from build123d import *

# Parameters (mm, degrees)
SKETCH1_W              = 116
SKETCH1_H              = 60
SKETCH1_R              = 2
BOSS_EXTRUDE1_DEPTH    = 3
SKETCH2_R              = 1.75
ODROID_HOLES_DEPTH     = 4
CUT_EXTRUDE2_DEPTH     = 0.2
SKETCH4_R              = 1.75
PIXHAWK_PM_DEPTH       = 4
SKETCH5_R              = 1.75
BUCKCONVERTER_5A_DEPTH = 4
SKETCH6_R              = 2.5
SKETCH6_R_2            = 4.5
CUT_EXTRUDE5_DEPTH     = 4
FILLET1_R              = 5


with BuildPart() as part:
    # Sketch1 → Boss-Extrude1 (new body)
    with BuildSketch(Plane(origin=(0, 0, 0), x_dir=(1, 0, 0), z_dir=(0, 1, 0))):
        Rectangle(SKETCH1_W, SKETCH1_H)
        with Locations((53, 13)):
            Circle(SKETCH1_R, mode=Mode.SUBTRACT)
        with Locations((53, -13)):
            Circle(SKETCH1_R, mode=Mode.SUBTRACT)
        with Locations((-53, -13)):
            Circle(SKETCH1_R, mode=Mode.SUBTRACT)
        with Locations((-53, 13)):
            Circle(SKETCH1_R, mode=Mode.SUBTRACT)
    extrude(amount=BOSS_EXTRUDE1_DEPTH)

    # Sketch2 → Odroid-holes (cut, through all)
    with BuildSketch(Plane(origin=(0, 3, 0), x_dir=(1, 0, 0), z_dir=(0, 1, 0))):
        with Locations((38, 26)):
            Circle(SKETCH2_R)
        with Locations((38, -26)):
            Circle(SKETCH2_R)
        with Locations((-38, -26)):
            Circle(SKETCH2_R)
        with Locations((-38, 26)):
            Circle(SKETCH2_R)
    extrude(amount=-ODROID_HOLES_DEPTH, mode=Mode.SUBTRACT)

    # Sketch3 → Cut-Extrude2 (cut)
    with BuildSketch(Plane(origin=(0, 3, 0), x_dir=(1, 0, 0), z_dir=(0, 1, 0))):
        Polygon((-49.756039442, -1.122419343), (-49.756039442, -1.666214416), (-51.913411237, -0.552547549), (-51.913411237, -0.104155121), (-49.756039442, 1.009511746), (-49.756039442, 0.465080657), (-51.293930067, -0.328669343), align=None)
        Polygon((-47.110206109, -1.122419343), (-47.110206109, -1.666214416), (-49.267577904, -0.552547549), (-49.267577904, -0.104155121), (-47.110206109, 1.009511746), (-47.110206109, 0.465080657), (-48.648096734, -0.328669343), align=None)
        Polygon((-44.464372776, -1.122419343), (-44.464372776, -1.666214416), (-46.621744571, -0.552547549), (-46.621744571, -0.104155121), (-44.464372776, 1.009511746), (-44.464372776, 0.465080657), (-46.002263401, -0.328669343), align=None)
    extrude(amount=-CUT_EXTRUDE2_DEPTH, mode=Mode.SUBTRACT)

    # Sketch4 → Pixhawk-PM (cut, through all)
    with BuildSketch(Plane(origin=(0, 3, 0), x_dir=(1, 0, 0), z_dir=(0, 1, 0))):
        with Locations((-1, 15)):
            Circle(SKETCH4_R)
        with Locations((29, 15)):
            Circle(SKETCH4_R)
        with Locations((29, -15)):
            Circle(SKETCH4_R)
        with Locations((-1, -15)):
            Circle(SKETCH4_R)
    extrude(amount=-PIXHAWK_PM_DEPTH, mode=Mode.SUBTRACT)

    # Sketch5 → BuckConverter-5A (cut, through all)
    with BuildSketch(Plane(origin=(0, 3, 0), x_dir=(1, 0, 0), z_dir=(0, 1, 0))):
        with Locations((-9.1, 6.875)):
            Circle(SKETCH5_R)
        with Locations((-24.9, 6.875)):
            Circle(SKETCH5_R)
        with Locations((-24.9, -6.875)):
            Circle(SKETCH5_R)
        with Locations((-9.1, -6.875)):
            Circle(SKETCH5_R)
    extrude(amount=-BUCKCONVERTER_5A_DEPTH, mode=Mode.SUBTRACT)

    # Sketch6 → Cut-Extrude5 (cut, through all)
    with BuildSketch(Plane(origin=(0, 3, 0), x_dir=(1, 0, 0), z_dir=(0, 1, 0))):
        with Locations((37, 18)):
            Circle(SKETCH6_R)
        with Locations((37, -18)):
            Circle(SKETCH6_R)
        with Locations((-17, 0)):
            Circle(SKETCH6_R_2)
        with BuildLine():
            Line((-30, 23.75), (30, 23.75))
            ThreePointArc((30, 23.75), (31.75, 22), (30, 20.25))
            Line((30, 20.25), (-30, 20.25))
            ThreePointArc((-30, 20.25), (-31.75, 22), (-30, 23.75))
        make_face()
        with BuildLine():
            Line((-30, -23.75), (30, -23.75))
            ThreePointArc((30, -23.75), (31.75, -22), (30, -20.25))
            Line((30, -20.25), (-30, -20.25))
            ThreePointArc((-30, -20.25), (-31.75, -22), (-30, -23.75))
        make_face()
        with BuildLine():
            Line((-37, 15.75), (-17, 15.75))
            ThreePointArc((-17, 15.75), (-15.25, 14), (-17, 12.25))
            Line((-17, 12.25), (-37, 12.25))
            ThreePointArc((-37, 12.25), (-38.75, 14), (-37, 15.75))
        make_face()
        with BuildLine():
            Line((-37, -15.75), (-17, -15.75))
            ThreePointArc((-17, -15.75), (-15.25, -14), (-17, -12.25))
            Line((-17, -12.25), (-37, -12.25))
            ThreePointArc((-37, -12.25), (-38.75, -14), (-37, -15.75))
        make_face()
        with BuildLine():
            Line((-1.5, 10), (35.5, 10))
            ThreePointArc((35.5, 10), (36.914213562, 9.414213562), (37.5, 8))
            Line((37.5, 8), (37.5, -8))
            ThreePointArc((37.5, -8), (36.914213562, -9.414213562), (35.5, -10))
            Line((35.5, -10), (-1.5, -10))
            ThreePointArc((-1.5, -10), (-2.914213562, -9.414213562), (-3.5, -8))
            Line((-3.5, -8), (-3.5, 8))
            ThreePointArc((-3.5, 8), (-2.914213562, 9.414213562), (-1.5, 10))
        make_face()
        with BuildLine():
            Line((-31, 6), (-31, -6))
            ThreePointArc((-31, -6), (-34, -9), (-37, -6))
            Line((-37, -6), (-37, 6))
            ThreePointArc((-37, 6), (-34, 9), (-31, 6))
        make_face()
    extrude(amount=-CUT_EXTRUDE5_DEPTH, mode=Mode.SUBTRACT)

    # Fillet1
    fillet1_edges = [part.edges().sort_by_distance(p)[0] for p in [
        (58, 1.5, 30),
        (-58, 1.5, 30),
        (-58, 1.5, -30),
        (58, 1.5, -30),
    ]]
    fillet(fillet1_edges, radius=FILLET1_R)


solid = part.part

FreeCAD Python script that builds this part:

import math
import FreeCAD as App
import Part
import Sketcher

V = App.Vector
Q = App.Units.Quantity


def edges_at(feature, points):
    """Names of the edges that pass closest to the given points."""
    edges = feature.Shape.Edges
    near = lambda p: min(range(len(edges)), key=lambda i: edges[i].distToShape(Part.Vertex(*p))[0])
    return sorted({f"Edge{near(p) + 1}" for p in points})

doc = App.newDocument("Part")
body = doc.addObject("PartDesign::Body", "Body")

sketch1 = body.newObject("Sketcher::SketchObject", "Sketch")
sketch1.AttachmentSupport = (doc.getObject("XZ_Plane"), [""])
sketch1.MapMode = "FlatFace"
sketch1.addGeometry([
    Part.LineSegment(V(-58, -30, 0), V(-58, 30, 0)),
    Part.LineSegment(V(-58, 30, 0), V(58, 30, 0)),
    Part.LineSegment(V(58, 30, 0), V(58, -30, 0)),
    Part.LineSegment(V(58, -30, 0), V(-58, -30, 0)),
    Part.Circle(V(-53, 13, 0), V(0, 0, 1), 2),
    Part.Circle(V(53, 13, 0), V(0, 0, 1), 2),
    Part.Circle(V(-53, -13, 0), V(0, 0, 1), 2),
    Part.Circle(V(53, -13, 0), V(0, 0, 1), 2),
], False)
sketch1.addConstraint([
    Sketcher.Constraint("Coincident", 0, 2, 1, 1),
    Sketcher.Constraint("Coincident", 1, 2, 2, 1),
    Sketcher.Constraint("Coincident", 2, 2, 3, 1),
    Sketcher.Constraint("Coincident", 3, 2, 0, 1),
    Sketcher.Constraint("Vertical", 0),
    Sketcher.Constraint("Horizontal", 1),
    Sketcher.Constraint("Vertical", 2),
    Sketcher.Constraint("Horizontal", 3),
    Sketcher.Constraint("Equal", 4, 5),
    Sketcher.Constraint("Equal", 5, 6),
    Sketcher.Constraint("Equal", 6, 7),
    Sketcher.Constraint("Symmetric", 5, 3, 6, 3, -1, 1),
    Sketcher.Constraint("Symmetric", 4, 3, 7, 3, -1, 1),
    Sketcher.Constraint("Symmetric", 0, 2, 2, 2, -1, 1),
    Sketcher.Constraint("Symmetric", 4, 3, 5, 3, -2),
    Sketcher.Constraint("Diameter", 4, Q("4 mm")),
    Sketcher.Constraint("DistanceX", 1, 1, 1, 2, Q("116 mm")),
    Sketcher.Constraint("DistanceY", 0, 1, 0, 2, Q("60 mm")),
    Sketcher.Constraint("DistanceX", 4, 3, -1, 1, Q("53 mm")),
    Sketcher.Constraint("DistanceY", -1, 1, 4, 3, Q("13 mm")),
])
pad1 = body.newObject("PartDesign::Pad", "Pad")
pad1.Profile = sketch1
pad1.Length = 3
pad1.Reversed = True

sketch2 = body.newObject("Sketcher::SketchObject", "Sketch001")
sketch2.AttachmentSupport = (doc.getObject("XZ_Plane"), [""])
sketch2.MapMode = "FlatFace"
sketch2.AttachmentOffset = App.Placement(V(0, 0, -3), App.Rotation())
sketch2.addGeometry([
    Part.Circle(V(38, -26, 0), V(0, 0, 1), 1.75),
    Part.Circle(V(38, 26, 0), V(0, 0, 1), 1.75),
    Part.Circle(V(-38, 26, 0), V(0, 0, 1), 1.75),
    Part.Circle(V(-38, -26, 0), V(0, 0, 1), 1.75),
], False)
sketch2.addConstraint([
    Sketcher.Constraint("Equal", 0, 1),
    Sketcher.Constraint("Equal", 1, 2),
    Sketcher.Constraint("Equal", 2, 3),
    Sketcher.Constraint("Symmetric", 0, 3, 2, 3, -1, 1),
    Sketcher.Constraint("Symmetric", 1, 3, 3, 3, -1, 1),
    Sketcher.Constraint("Symmetric", 1, 3, 2, 3, -2),
    Sketcher.Constraint("Diameter", 0, Q("3.5 mm")),
    Sketcher.Constraint("DistanceX", -1, 1, 0, 3, Q("38 mm")),
    Sketcher.Constraint("DistanceY", 0, 3, -1, 1, Q("26 mm")),
])
pocket1 = body.newObject("PartDesign::Pocket", "Pocket")
pocket1.Profile = sketch2
pocket1.Type = "ThroughAll"
pocket1.Reversed = True

sketch3 = body.newObject("Sketcher::SketchObject", "Sketch002")
sketch3.AttachmentSupport = (doc.getObject("XZ_Plane"), [""])
sketch3.MapMode = "FlatFace"
sketch3.AttachmentOffset = App.Placement(V(0, 0, -3), App.Rotation())
sketch3.addGeometry([
    Part.LineSegment(V(-49.756039, 1.666214, 0), V(-49.756039, 1.122419, 0)),
    Part.LineSegment(V(-49.756039, 1.122419, 0), V(-51.29393, 0.328669, 0)),
    Part.LineSegment(V(-51.29393, 0.328669, 0), V(-49.756039, -0.465081, 0)),
    Part.LineSegment(V(-49.756039, -0.465081, 0), V(-49.756039, -1.009512, 0)),
    Part.LineSegment(V(-49.756039, -1.009512, 0), V(-51.913411, 0.104155, 0)),
    Part.LineSegment(V(-51.913411, 0.104155, 0), V(-51.913411, 0.552548, 0)),
    Part.LineSegment(V(-51.913411, 0.552548, 0), V(-49.756039, 1.666214, 0)),
    Part.LineSegment(V(-47.110206, 1.666214, 0), V(-47.110206, 1.122419, 0)),
    Part.LineSegment(V(-47.110206, 1.122419, 0), V(-48.648097, 0.328669, 0)),
    Part.LineSegment(V(-48.648097, 0.328669, 0), V(-47.110206, -0.465081, 0)),
    Part.LineSegment(V(-47.110206, -0.465081, 0), V(-47.110206, -1.009512, 0)),
    Part.LineSegment(V(-47.110206, -1.009512, 0), V(-49.267578, 0.104155, 0)),
    Part.LineSegment(V(-49.267578, 0.104155, 0), V(-49.267578, 0.552548, 0)),
    Part.LineSegment(V(-49.267578, 0.552548, 0), V(-47.110206, 1.666214, 0)),
    Part.LineSegment(V(-44.464373, 1.666214, 0), V(-44.464373, 1.122419, 0)),
    Part.LineSegment(V(-44.464373, 1.122419, 0), V(-46.002263, 0.328669, 0)),
    Part.LineSegment(V(-46.002263, 0.328669, 0), V(-44.464373, -0.465081, 0)),
    Part.LineSegment(V(-44.464373, -0.465081, 0), V(-44.464373, -1.009512, 0)),
    Part.LineSegment(V(-44.464373, -1.009512, 0), V(-46.621745, 0.104155, 0)),
    Part.LineSegment(V(-46.621745, 0.104155, 0), V(-46.621745, 0.552548, 0)),
    Part.LineSegment(V(-46.621745, 0.552548, 0), V(-44.464373, 1.666214, 0)),
], False)
sketch3.addConstraint([
    Sketcher.Constraint("Coincident", 0, 2, 1, 1),
    Sketcher.Constraint("Coincident", 1, 2, 2, 1),
    Sketcher.Constraint("Coincident", 2, 2, 3, 1),
    Sketcher.Constraint("Coincident", 3, 2, 4, 1),
    Sketcher.Constraint("Coincident", 4, 2, 5, 1),
    Sketcher.Constraint("Coincident", 5, 2, 6, 1),
    Sketcher.Constraint("Coincident", 6, 2, 0, 1),
    Sketcher.Constraint("Coincident", 7, 2, 8, 1),
    Sketcher.Constraint("Coincident", 8, 2, 9, 1),
    Sketcher.Constraint("Coincident", 9, 2, 10, 1),
    Sketcher.Constraint("Coincident", 10, 2, 11, 1),
    Sketcher.Constraint("Coincident", 11, 2, 12, 1),
    Sketcher.Constraint("Coincident", 12, 2, 13, 1),
    Sketcher.Constraint("Coincident", 13, 2, 7, 1),
    Sketcher.Constraint("Coincident", 14, 2, 15, 1),
    Sketcher.Constraint("Coincident", 15, 2, 16, 1),
    Sketcher.Constraint("Coincident", 16, 2, 17, 1),
    Sketcher.Constraint("Coincident", 17, 2, 18, 1),
    Sketcher.Constraint("Coincident", 18, 2, 19, 1),
    Sketcher.Constraint("Coincident", 19, 2, 20, 1),
    Sketcher.Constraint("Coincident", 20, 2, 14, 1),
    Sketcher.Constraint("Vertical", 0),
    Sketcher.Constraint("Vertical", 3),
    Sketcher.Constraint("Vertical", 5),
    Sketcher.Constraint("Vertical", 7),
    Sketcher.Constraint("Vertical", 10),
    Sketcher.Constraint("Vertical", 12),
    Sketcher.Constraint("Vertical", 14),
    Sketcher.Constraint("Vertical", 17),
    Sketcher.Constraint("Vertical", 19),
    Sketcher.Constraint("Parallel", 1, 8),
    Sketcher.Constraint("Parallel", 2, 9),
    Sketcher.Constraint("Parallel", 4, 11),
    Sketcher.Constraint("Parallel", 6, 13),
    Sketcher.Constraint("Parallel", 8, 15),
    Sketcher.Constraint("Parallel", 9, 16),
    Sketcher.Constraint("Parallel", 11, 18),
    Sketcher.Constraint("Parallel", 13, 20),
    Sketcher.Constraint("Horizontal", 0, 2, 7, 2),
    Sketcher.Constraint("Horizontal", 1, 2, 8, 2),
    Sketcher.Constraint("Horizontal", 2, 2, 9, 2),
    Sketcher.Constraint("Horizontal", 3, 2, 10, 2),
    Sketcher.Constraint("Horizontal", 4, 2, 11, 2),
    Sketcher.Constraint("Horizontal", 5, 2, 12, 2),
    Sketcher.Constraint("Horizontal", 7, 2, 14, 2),
    Sketcher.Constraint("Horizontal", 8, 2, 15, 2),
    Sketcher.Constraint("Horizontal", 9, 2, 16, 2),
    Sketcher.Constraint("Horizontal", 10, 2, 17, 2),
    Sketcher.Constraint("Horizontal", 11, 2, 18, 2),
    Sketcher.Constraint("Horizontal", 12, 2, 19, 2),
    Sketcher.Constraint("Vertical", 0, 2, 2, 2),
    Sketcher.Constraint("Equal", 1, 2),
    Sketcher.Constraint("Equal", 4, 6),
    Sketcher.Constraint("DistanceY", 3, 2, 3, 1, Q("0.544431 mm")),
    Sketcher.Constraint("DistanceY", 2, 2, 0, 2, Q("1.5875 mm")),
    Sketcher.Constraint("Distance", 1, Q("1.730649 mm")),
    Sketcher.Constraint("Distance", 4, Q("2.427861 mm")),
    Sketcher.Constraint("DistanceY", 0, 2, 0, 1, Q("0.543795 mm")),
    Sketcher.Constraint("DistanceY", 5, 1, 5, 2, Q("0.448392 mm")),
    Sketcher.Constraint("DistanceX", 0, 2, -1, 1, Q("49.756039 mm")),
    Sketcher.Constraint("DistanceY", -1, 1, 0, 2, Q("1.122419 mm")),
    Sketcher.Constraint("DistanceX", 2, 2, 11, 2, Q("0.488462 mm")),
    Sketcher.Constraint("DistanceX", 9, 2, 18, 2, Q("0.488462 mm")),
])
pocket2 = body.newObject("PartDesign::Pocket", "Pocket001")
pocket2.Profile = sketch3
pocket2.Length = 0.2
pocket2.Reversed = True

sketch4 = body.newObject("Sketcher::SketchObject", "Sketch003")
sketch4.AttachmentSupport = (doc.getObject("XZ_Plane"), [""])
sketch4.MapMode = "FlatFace"
sketch4.AttachmentOffset = App.Placement(V(0, 0, -3), App.Rotation())
sketch4.addGeometry([
    Part.Circle(V(-1, -15, 0), V(0, 0, 1), 1.75),
    Part.Circle(V(29, -15, 0), V(0, 0, 1), 1.75),
    Part.Circle(V(29, 15, 0), V(0, 0, 1), 1.75),
    Part.Circle(V(-1, 15, 0), V(0, 0, 1), 1.75),
], False)
sketch4.addConstraint([
    Sketcher.Constraint("Equal", 0, 1),
    Sketcher.Constraint("Equal", 1, 2),
    Sketcher.Constraint("Equal", 2, 3),
    Sketcher.Constraint("Symmetric", 1, 3, 2, 3, -1),
    Sketcher.Constraint("Symmetric", 0, 3, 3, 3, -1),
    Sketcher.Constraint("Horizontal", 0, 3, 1, 3),
    Sketcher.Constraint("Diameter", 0, Q("3.5 mm")),
    Sketcher.Constraint("DistanceX", 0, 3, -1, 1, Q("1 mm")),
    Sketcher.Constraint("DistanceY", 0, 3, -1, 1, Q("15 mm")),
    Sketcher.Constraint("DistanceX", -1, 1, 1, 3, Q("29 mm")),
])
pocket3 = body.newObject("PartDesign::Pocket", "Pocket002")
pocket3.Profile = sketch4
pocket3.Type = "ThroughAll"
pocket3.Reversed = True

sketch5 = body.newObject("Sketcher::SketchObject", "Sketch004")
sketch5.AttachmentSupport = (doc.getObject("XZ_Plane"), [""])
sketch5.MapMode = "FlatFace"
sketch5.AttachmentOffset = App.Placement(V(0, 0, -3), App.Rotation())
sketch5.addGeometry([
    Part.Circle(V(-9.1, -6.875, 0), V(0, 0, 1), 1.75),
    Part.Circle(V(-24.9, -6.875, 0), V(0, 0, 1), 1.75),
    Part.Circle(V(-24.9, 6.875, 0), V(0, 0, 1), 1.75),
    Part.Circle(V(-9.1, 6.875, 0), V(0, 0, 1), 1.75),
], False)
sketch5.addConstraint([
    Sketcher.Constraint("Equal", 0, 1),
    Sketcher.Constraint("Equal", 1, 2),
    Sketcher.Constraint("Equal", 2, 3),
    Sketcher.Constraint("Symmetric", 1, 3, 2, 3, -1),
    Sketcher.Constraint("Symmetric", 0, 3, 3, 3, -1),
    Sketcher.Constraint("Horizontal", 0, 3, 1, 3),
    Sketcher.Constraint("Diameter", 0, Q("3.5 mm")),
    Sketcher.Constraint("DistanceX", 0, 3, -1, 1, Q("9.1 mm")),
    Sketcher.Constraint("DistanceX", 1, 3, -1, 1, Q("24.9 mm")),
    Sketcher.Constraint("DistanceY", 1, 3, 2, 3, Q("13.75 mm")),
])
pocket4 = body.newObject("PartDesign::Pocket", "Pocket003")
pocket4.Profile = sketch5
pocket4.Type = "ThroughAll"
pocket4.Reversed = True

sketch6 = body.newObject("Sketcher::SketchObject", "Sketch005")
sketch6.AttachmentSupport = (doc.getObject("XZ_Plane"), [""])
sketch6.MapMode = "FlatFace"
sketch6.AttachmentOffset = App.Placement(V(0, 0, -3), App.Rotation())
sketch6.addGeometry([
    Part.Circle(V(37, -18, 0), V(0, 0, 1), 2.5),
    Part.Circle(V(37, 18, 0), V(0, 0, 1), 2.5),
    Part.Circle(V(-17, 0, 0), V(0, 0, 1), 4.5),
    Part.LineSegment(V(30, -23.75, 0), V(-30, -23.75, 0)),
    Part.ArcOfCircle(Part.Circle(V(-30, -22, 0), V(0, 0, 1), 1.75), math.radians(90), math.radians(270)),
    Part.LineSegment(V(-30, -20.25, 0), V(30, -20.25, 0)),
    Part.ArcOfCircle(Part.Circle(V(30, -22, 0), V(0, 0, 1), 1.75), math.radians(-90), math.radians(90)),
    Part.LineSegment(V(-30, 23.75, 0), V(30, 23.75, 0)),
    Part.ArcOfCircle(Part.Circle(V(30, 22, 0), V(0, 0, 1), 1.75), math.radians(-90), math.radians(90)),
    Part.LineSegment(V(30, 20.25, 0), V(-30, 20.25, 0)),
    Part.ArcOfCircle(Part.Circle(V(-30, 22, 0), V(0, 0, 1), 1.75), math.radians(90), math.radians(270)),
    Part.LineSegment(V(-17, -15.75, 0), V(-37, -15.75, 0)),
    Part.ArcOfCircle(Part.Circle(V(-37, -14, 0), V(0, 0, 1), 1.75), math.radians(90), math.radians(270)),
    Part.LineSegment(V(-37, -12.25, 0), V(-17, -12.25, 0)),
    Part.ArcOfCircle(Part.Circle(V(-17, -14, 0), V(0, 0, 1), 1.75), math.radians(-90), math.radians(90)),
    Part.LineSegment(V(-37, 15.75, 0), V(-17, 15.75, 0)),
    Part.ArcOfCircle(Part.Circle(V(-17, 14, 0), V(0, 0, 1), 1.75), math.radians(-90), math.radians(90)),
    Part.LineSegment(V(-17, 12.25, 0), V(-37, 12.25, 0)),
    Part.ArcOfCircle(Part.Circle(V(-37, 14, 0), V(0, 0, 1), 1.75), math.radians(90), math.radians(270)),
    Part.LineSegment(V(35.5, -10, 0), V(-1.5, -10, 0)),
    Part.ArcOfCircle(Part.Circle(V(-1.5, -8, 0), V(0, 0, 1), 2), math.radians(-180), math.radians(-90)),
    Part.LineSegment(V(-3.5, -8, 0), V(-3.5, 8, 0)),
    Part.ArcOfCircle(Part.Circle(V(-1.5, 8, 0), V(0, 0, 1), 2), math.radians(90), math.radians(180)),
    Part.LineSegment(V(-1.5, 10, 0), V(35.5, 10, 0)),
    Part.ArcOfCircle(Part.Circle(V(35.5, 8, 0), V(0, 0, 1), 2), math.radians(0), math.radians(90)),
    Part.LineSegment(V(37.5, 8, 0), V(37.5, -8, 0)),
    Part.ArcOfCircle(Part.Circle(V(35.5, -8, 0), V(0, 0, 1), 2), math.radians(-90), math.radians(0)),
    Part.LineSegment(V(-31, 6, 0), V(-31, -6, 0)),
    Part.ArcOfCircle(Part.Circle(V(-34, -6, 0), V(0, 0, 1), 3), math.radians(180), math.radians(360)),
    Part.LineSegment(V(-37, -6, 0), V(-37, 6, 0)),
    Part.ArcOfCircle(Part.Circle(V(-34, 6, 0), V(0, 0, 1), 3), math.radians(0), math.radians(180)),
], False)
sketch6.addConstraint([
    Sketcher.Constraint("Tangent", 3, 2, 4, 2),
    Sketcher.Constraint("Tangent", 4, 1, 5, 1),
    Sketcher.Constraint("Tangent", 5, 2, 6, 2),
    Sketcher.Constraint("Tangent", 6, 1, 3, 1),
    Sketcher.Constraint("Tangent", 7, 2, 8, 2),
    Sketcher.Constraint("Tangent", 8, 1, 9, 1),
    Sketcher.Constraint("Tangent", 9, 2, 10, 2),
    Sketcher.Constraint("Tangent", 10, 1, 7, 1),
    Sketcher.Constraint("Tangent", 11, 2, 12, 2),
    Sketcher.Constraint("Tangent", 12, 1, 13, 1),
    Sketcher.Constraint("Tangent", 13, 2, 14, 2),
    Sketcher.Constraint("Tangent", 14, 1, 11, 1),
    Sketcher.Constraint("Tangent", 15, 2, 16, 2),
    Sketcher.Constraint("Tangent", 16, 1, 17, 1),
    Sketcher.Constraint("Tangent", 17, 2, 18, 2),
    Sketcher.Constraint("Tangent", 18, 1, 15, 1),
    Sketcher.Constraint("Tangent", 19, 2, 20, 2),
    Sketcher.Constraint("Tangent", 20, 1, 21, 1),
    Sketcher.Constraint("Tangent", 21, 2, 22, 2),
    Sketcher.Constraint("Tangent", 22, 1, 23, 1),
    Sketcher.Constraint("Tangent", 23, 2, 24, 2),
    Sketcher.Constraint("Tangent", 24, 1, 25, 1),
    Sketcher.Constraint("Tangent", 25, 2, 26, 2),
    Sketcher.Constraint("Tangent", 26, 1, 19, 1),
    Sketcher.Constraint("Tangent", 27, 2, 28, 2),
    Sketcher.Constraint("Tangent", 28, 1, 29, 1),
    Sketcher.Constraint("Tangent", 29, 2, 30, 2),
    Sketcher.Constraint("Tangent", 30, 1, 27, 1),
    Sketcher.Constraint("Horizontal", 3),
    Sketcher.Constraint("Horizontal", 5),
    Sketcher.Constraint("Horizontal", 7),
    Sketcher.Constraint("Horizontal", 9),
    Sketcher.Constraint("Horizontal", 11),
    Sketcher.Constraint("Horizontal", 13),
    Sketcher.Constraint("Horizontal", 15),
    Sketcher.Constraint("Horizontal", 17),
    Sketcher.Constraint("Horizontal", 19),
    Sketcher.Constraint("Vertical", 21),
    Sketcher.Constraint("Horizontal", 23),
    Sketcher.Constraint("Vertical", 25),
    Sketcher.Constraint("Vertical", 27),
    Sketcher.Constraint("Vertical", 29),
    Sketcher.Constraint("Equal", 0, 1),
    Sketcher.Constraint("Equal", 6, 8),
    Sketcher.Constraint("Equal", 10, 12),
    Sketcher.Constraint("Equal", 14, 16),
    Sketcher.Constraint("Equal", 20, 22),
    Sketcher.Constraint("Equal", 22, 24),
    Sketcher.Constraint("Equal", 24, 26),
    Sketcher.Constraint("Symmetric", 4, 3, 8, 3, -1, 1),
    Sketcher.Constraint("Symmetric", 0, 3, 1, 3, -1),
    Sketcher.Constraint("Symmetric", 14, 3, 16, 3, -1),
    Sketcher.Constraint("PointOnObject", 2, 3, -1),
    Sketcher.Constraint("Vertical", 6, 3, 8, 3),
    Sketcher.Constraint("Vertical", 4, 3, 10, 3),
    Sketcher.Constraint("Vertical", 2, 3, 14, 3),
    Sketcher.Constraint("Vertical", 12, 3, 18, 3),
    Sketcher.Constraint("Vertical", 18, 1, 28, 1),
    Sketcher.Constraint("Diameter", 0, Q("5 mm")),
    Sketcher.Constraint("Diameter", 2, Q("9 mm")),
    Sketcher.Constraint("Radius", 20, Q("2 mm")),
    Sketcher.Constraint("Radius", 28, Q("3 mm")),
    Sketcher.Constraint("DistanceX", 3, 2, 3, 1, Q("60 mm")),
    Sketcher.Constraint("DistanceX", 11, 2, 11, 1, Q("20 mm")),
    Sketcher.Constraint("DistanceX", 19, 2, 19, 1, Q("37 mm")),
    Sketcher.Constraint("DistanceY", 21, 1, 21, 2, Q("16 mm")),
    Sketcher.Constraint("DistanceY", 27, 2, 27, 1, Q("12 mm")),
    Sketcher.Constraint("Radius", 4, Q("1.75 mm")),
    Sketcher.Constraint("DistanceX", -1, 1, 0, 3, Q("37 mm")),
    Sketcher.Constraint("DistanceY", 0, 3, -1, 1, Q("18 mm")),
    Sketcher.Constraint("DistanceX", 2, 3, -1, 1, Q("17 mm")),
    Sketcher.Constraint("DistanceY", 4, 3, -1, 1, Q("22 mm")),
    Sketcher.Constraint("DistanceY", 12, 3, -1, 1, Q("14 mm")),
    Sketcher.Constraint("DistanceY", 20, 3, -1, 1, Q("8 mm")),
    Sketcher.Constraint("DistanceY", 28, 3, -1, 1, Q("6 mm")),
    Sketcher.Constraint("DistanceX", 20, 3, -1, 1, Q("1.5 mm")),
])
pocket5 = body.newObject("PartDesign::Pocket", "Pocket004")
pocket5.Profile = sketch6
pocket5.Type = "ThroughAll"
pocket5.Reversed = True
doc.recompute()

fillet = body.newObject("PartDesign::Fillet", "Fillet")
fillet.Base = (pocket5, edges_at(pocket5, [
    (58, 1.5, 30),
    (-58, 1.5, 30),
    (-58, 1.5, -30),
    (58, 1.5, -30),
]))
fillet.Radius = 5

doc.recompute()
